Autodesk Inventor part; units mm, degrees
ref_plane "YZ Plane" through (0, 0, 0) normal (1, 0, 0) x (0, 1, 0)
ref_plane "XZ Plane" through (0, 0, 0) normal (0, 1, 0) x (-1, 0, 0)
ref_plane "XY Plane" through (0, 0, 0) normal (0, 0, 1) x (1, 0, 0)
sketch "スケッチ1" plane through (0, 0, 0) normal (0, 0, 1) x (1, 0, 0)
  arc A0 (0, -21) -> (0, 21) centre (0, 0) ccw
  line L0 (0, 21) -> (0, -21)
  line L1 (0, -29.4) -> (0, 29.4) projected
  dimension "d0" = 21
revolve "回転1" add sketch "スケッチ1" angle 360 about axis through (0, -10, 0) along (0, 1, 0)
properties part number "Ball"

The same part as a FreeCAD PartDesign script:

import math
import FreeCAD as App
import Part
import Sketcher

V = App.Vector

doc = App.newDocument("Part")
body = doc.addObject("PartDesign::Body", "Body")

# Sketch on XY plane
sketch1 = body.newObject("Sketcher::SketchObject", "Sketch")
sketch1.AttachmentSupport = (doc.getObject("XY_Plane"), [""])
sketch1.MapMode = "FlatFace"
sketch1.addGeometry([
    Part.LineSegment(V(0, 21, 0), V(0, -21, 0)),
    Part.ArcOfCircle(Part.Circle(V(0, 0, 0), V(0, 0, 1), 21), math.radians(-90), math.radians(90)),
], False)
sketch1.addConstraint([
    Sketcher.Constraint("Coincident", 0, 1, 1, 2),
    Sketcher.Constraint("Coincident", 1, 1, 0, 2),
    Sketcher.Constraint("Vertical", 0),
    Sketcher.Constraint("Coincident", 1, 3, -1, 1),
    Sketcher.Constraint("PointOnObject", 0, 1, -2),
    Sketcher.Constraint("Radius", 1, 21.0),
])
revolution = body.newObject("PartDesign::Revolution", "Revolution")
revolution.Profile = sketch1
revolution.ReferenceAxis = (sketch1, ["V_Axis"])
revolution.Angle = 360

doc.recompute()
